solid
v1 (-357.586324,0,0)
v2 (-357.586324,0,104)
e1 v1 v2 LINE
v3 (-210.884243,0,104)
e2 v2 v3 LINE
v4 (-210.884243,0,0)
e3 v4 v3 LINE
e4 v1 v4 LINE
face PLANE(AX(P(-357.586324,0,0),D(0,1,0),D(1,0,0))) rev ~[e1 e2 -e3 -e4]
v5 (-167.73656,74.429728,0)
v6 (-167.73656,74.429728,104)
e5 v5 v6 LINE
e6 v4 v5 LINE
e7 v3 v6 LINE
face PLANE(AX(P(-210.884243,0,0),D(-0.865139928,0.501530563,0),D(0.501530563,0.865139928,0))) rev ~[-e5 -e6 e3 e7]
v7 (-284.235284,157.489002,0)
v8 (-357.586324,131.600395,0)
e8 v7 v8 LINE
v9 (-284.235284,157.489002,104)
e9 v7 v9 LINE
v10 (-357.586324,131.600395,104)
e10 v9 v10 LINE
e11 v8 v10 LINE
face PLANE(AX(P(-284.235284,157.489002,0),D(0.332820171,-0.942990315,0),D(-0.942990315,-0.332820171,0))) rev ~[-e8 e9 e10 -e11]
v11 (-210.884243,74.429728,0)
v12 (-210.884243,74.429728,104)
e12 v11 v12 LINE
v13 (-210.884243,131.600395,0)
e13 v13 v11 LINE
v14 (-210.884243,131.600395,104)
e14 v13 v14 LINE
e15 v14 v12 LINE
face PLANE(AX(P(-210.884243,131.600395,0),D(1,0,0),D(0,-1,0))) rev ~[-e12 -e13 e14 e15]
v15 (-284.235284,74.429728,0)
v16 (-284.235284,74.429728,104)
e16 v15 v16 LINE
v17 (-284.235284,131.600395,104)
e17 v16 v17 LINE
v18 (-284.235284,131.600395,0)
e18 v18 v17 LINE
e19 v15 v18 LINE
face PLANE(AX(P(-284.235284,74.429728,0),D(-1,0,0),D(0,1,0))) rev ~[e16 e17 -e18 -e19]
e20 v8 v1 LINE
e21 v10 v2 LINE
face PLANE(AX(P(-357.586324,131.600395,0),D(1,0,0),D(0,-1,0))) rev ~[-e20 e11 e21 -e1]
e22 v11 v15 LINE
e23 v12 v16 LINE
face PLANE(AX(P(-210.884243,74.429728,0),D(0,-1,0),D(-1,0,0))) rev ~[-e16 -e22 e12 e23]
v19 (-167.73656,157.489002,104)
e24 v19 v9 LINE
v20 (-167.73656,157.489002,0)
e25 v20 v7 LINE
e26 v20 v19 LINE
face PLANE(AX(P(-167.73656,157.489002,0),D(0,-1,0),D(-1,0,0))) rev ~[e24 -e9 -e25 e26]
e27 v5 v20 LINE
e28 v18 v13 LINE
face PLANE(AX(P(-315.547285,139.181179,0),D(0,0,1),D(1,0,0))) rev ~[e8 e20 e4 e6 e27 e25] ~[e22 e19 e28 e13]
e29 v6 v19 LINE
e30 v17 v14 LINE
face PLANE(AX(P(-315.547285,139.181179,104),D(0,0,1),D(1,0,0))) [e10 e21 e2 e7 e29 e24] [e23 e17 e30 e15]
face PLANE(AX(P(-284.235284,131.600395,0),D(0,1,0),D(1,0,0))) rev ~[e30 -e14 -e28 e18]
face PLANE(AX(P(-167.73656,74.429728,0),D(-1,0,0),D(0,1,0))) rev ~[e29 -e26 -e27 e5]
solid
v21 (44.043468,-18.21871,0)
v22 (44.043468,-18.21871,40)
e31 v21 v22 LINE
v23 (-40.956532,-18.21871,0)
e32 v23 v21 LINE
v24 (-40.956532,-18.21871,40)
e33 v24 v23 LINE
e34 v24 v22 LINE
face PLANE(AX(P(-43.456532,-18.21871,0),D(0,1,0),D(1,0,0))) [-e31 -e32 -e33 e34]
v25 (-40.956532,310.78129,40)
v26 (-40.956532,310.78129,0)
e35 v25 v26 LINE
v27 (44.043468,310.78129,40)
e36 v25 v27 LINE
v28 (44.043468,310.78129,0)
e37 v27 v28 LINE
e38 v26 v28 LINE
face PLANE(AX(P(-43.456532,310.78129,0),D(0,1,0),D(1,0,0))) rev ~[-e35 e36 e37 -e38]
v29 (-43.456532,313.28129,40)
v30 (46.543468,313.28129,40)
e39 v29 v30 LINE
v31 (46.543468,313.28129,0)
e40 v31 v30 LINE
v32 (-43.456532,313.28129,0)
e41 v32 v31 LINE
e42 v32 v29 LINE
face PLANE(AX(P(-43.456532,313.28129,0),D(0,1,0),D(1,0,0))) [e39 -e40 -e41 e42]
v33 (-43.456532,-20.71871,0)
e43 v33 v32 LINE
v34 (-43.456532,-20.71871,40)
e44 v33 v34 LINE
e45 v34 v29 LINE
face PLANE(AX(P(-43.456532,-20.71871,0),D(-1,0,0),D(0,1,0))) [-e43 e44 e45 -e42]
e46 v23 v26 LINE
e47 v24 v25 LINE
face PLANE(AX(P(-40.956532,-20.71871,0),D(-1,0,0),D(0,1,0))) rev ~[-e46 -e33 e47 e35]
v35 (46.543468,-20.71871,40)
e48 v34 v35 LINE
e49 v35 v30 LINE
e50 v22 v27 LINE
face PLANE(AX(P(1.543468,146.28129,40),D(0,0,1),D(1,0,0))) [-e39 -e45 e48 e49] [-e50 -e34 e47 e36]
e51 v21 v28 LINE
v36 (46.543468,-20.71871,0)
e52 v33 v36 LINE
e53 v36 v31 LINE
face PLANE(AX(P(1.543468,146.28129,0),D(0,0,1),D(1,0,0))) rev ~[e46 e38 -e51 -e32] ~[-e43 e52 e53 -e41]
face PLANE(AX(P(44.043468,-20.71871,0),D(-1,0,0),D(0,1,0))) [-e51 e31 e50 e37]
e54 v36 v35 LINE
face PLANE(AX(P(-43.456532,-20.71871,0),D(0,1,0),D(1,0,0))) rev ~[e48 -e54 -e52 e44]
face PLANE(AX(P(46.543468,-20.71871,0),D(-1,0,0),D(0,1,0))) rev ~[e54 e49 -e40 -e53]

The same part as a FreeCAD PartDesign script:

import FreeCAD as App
import Part
import Sketcher
Q = App.Units.Quantity


def faces_at(feature, points):
    """Names of the faces that lie closest to the given points."""
    faces = feature.Shape.Faces
    near = lambda p: min(range(len(faces)), key=lambda i: faces[i].distToShape(Part.Vertex(*p))[0])
    return sorted({f"Face{near(p) + 1}" for p in points})

doc = App.newDocument("Part")
body = doc.addObject("PartDesign::Body", "Body")

sketch1 = doc.addObject("Sketcher::SketchObject", "Sketch")
body.addObject(sketch1)
sketch1.AttachmentSupport = (doc.XY_Plane, [""])
sketch1.MapMode = "FlatFace"
sketch1.addGeometry([
    Part.LineSegment(App.Vector(-43, 313, 0), App.Vector(-43, -21, 0)),
    Part.LineSegment(App.Vector(-43, -21, 0), App.Vector(47, -21, 0)),
    Part.LineSegment(App.Vector(47, -21, 0), App.Vector(47, 313, 0)),
    Part.LineSegment(App.Vector(47, 313, 0), App.Vector(-43, 313, 0)),
], False)
sketch1.addConstraint([
    Sketcher.Constraint("Coincident", 0, 2, 1, 1),
    Sketcher.Constraint("Coincident", 1, 2, 2, 1),
    Sketcher.Constraint("Coincident", 2, 2, 3, 1),
    Sketcher.Constraint("Coincident", 3, 2, 0, 1),
    Sketcher.Constraint("Vertical", 0),
    Sketcher.Constraint("Horizontal", 1),
    Sketcher.Constraint("Vertical", 2),
    Sketcher.Constraint("Horizontal", 3),
    Sketcher.Constraint("DistanceX", 1, 1, 1, 2, Q("90 mm")),
    Sketcher.Constraint("DistanceY", 0, 2, 0, 1, Q("334 mm")),
    Sketcher.Constraint("DistanceY", 0, 2, -1, 1, Q("20.71871 mm")),
    Sketcher.Constraint("DistanceX", 0, 2, -1, 1, Q("43.456532 mm")),
])
pad1 = doc.addObject("PartDesign::Pad", "Pad")
body.addObject(pad1)
pad1.Profile = sketch1
pad1.Length = 40
doc.recompute()

thickness = doc.addObject("PartDesign::Thickness", "Thickness")
body.addObject(thickness)
thickness.Base = (pad1, faces_at(pad1, [(1.543, 146.281, 40), (1.543, 146.281, 0)]))
thickness.Value = 2.5
thickness.Reversed = True
thickness.Join = "Arc"
body2 = doc.addObject("PartDesign::Body", "Body001")

sketch2 = doc.addObject("Sketcher::SketchObject", "Sketch001")
body2.addObject(sketch2)
sketch2.AttachmentSupport = (doc.getObject("XY_Plane001"), [""])
sketch2.MapMode = "FlatFace"
sketch2.addGeometry([
    Part.LineSegment(App.Vector(-358, 0, 0), App.Vector(-211, 0, 0)),
    Part.LineSegment(App.Vector(-211, 0, 0), App.Vector(-168, 74, 0)),
    Part.LineSegment(App.Vector(-168, 74, 0), App.Vector(-168, 157, 0)),
    Part.LineSegment(App.Vector(-168, 157, 0), App.Vector(-284, 157, 0)),
    Part.LineSegment(App.Vector(-284, 157, 0), App.Vector(-358, 132, 0)),
    Part.LineSegment(App.Vector(-358, 132, 0), App.Vector(-358, 0, 0)),
    Part.LineSegment(App.Vector(-211, 132, 0), App.Vector(-211, 74, 0)),
    Part.LineSegment(App.Vector(-211, 74, 0), App.Vector(-284, 74, 0)),
    Part.LineSegment(App.Vector(-284, 74, 0), App.Vector(-284, 132, 0)),
    Part.LineSegment(App.Vector(-284, 132, 0), App.Vector(-211, 132, 0)),
], False)
sketch2.addConstraint([
    Sketcher.Constraint("Coincident", 0, 2, 1, 1),
    Sketcher.Constraint("Coincident", 1, 2, 2, 1),
    Sketcher.Constraint("Coincident", 2, 2, 3, 1),
    Sketcher.Constraint("Coincident", 3, 2, 4, 1),
    Sketcher.Constraint("Coincident", 4, 2, 5, 1),
    Sketcher.Constraint("Coincident", 5, 2, 0, 1),
    Sketcher.Constraint("Coincident", 6, 2, 7, 1),
    Sketcher.Constraint("Coincident", 7, 2, 8, 1),
    Sketcher.Constraint("Coincident", 8, 2, 9, 1),
    Sketcher.Constraint("Coincident", 9, 2, 6, 1),
    Sketcher.Constraint("Horizontal", 0),
    Sketcher.Constraint("Vertical", 2),
    Sketcher.Constraint("Horizontal", 3),
    Sketcher.Constraint("Vertical", 5),
    Sketcher.Constraint("Vertical", 6),
    Sketcher.Constraint("Horizontal", 7),
    Sketcher.Constraint("Vertical", 8),
    Sketcher.Constraint("Horizontal", 9),
    Sketcher.Constraint("PointOnObject", 0, 2, -1),
    Sketcher.Constraint("Horizontal", 1, 2, 6, 2),
    Sketcher.Constraint("Horizontal", 4, 2, 8, 2),
    Sketcher.Constraint("Vertical", 0, 2, 6, 2),
    Sketcher.Constraint("Vertical", 3, 2, 7, 2),
    Sketcher.Constraint("DistanceY", -1, 1, 2, 2, Q("157.489002 mm")),
    Sketcher.Constraint("DistanceX", 0, 1, 0, 2, Q("146.702081 mm")),
    Sketcher.Constraint("DistanceX", 7, 2, 7, 1, Q("73.351041 mm")),
    Sketcher.Constraint("Distance", 1, Q("86.032011 mm")),
    Sketcher.Constraint("Distance", 4, Q("77.785571 mm")),
    Sketcher.Constraint("DistanceX", 3, 2, 3, 1, Q("116.498724 mm")),
    Sketcher.Constraint("DistanceX", 1, 2, -1, 1, Q("167.73656 mm")),
])
pad2 = doc.addObject("PartDesign::Pad", "Pad001")
body2.addObject(pad2)
pad2.Profile = sketch2
pad2.Length = 104

doc.recompute()
